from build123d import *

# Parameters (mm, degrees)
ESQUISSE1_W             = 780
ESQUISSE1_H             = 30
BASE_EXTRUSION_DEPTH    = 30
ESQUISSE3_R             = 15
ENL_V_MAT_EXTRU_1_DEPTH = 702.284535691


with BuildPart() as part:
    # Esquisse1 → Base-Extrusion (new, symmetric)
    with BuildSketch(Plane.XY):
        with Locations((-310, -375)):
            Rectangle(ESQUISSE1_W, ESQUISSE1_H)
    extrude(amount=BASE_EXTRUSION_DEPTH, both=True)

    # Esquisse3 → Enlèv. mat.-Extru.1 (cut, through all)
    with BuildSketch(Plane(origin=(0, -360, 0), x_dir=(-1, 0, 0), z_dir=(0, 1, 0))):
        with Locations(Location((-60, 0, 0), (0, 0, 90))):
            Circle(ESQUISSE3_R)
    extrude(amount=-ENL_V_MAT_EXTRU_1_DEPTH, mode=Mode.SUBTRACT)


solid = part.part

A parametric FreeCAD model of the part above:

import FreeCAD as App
import Part
import Sketcher

V = App.Vector
Q = App.Units.Quantity

doc = App.newDocument("Part")
body = doc.addObject("PartDesign::Body", "Body")

# Sketch on XY plane
sketch1 = doc.addObject("Sketcher::SketchObject", "Sketch")
body.addObject(sketch1)
sketch1.AttachmentSupport = (doc.XY_Plane, [""])
sketch1.MapMode = "FlatFace"
sketch1.addGeometry([
    Part.LineSegment(V(-700, -360, 0), V(-700, -390, 0)),
    Part.LineSegment(V(-700, -390, 0), V(80, -390, 0)),
    Part.LineSegment(V(80, -390, 0), V(80, -360, 0)),
    Part.LineSegment(V(80, -360, 0), V(-700, -360, 0)),
], False)
sketch1.addConstraint([
    Sketcher.Constraint("Coincident", 0, 2, 1, 1),
    Sketcher.Constraint("Coincident", 1, 2, 2, 1),
    Sketcher.Constraint("Coincident", 2, 2, 3, 1),
    Sketcher.Constraint("Coincident", 3, 2, 0, 1),
    Sketcher.Constraint("Vertical", 0),
    Sketcher.Constraint("Horizontal", 1),
    Sketcher.Constraint("Vertical", 2),
    Sketcher.Constraint("Horizontal", 3),
    Sketcher.Constraint("DistanceX", 1, 1, 1, 2, Q("780 mm")),
    Sketcher.Constraint("DistanceY", 0, 2, 0, 1, Q("30 mm")),
    Sketcher.Constraint("DistanceX", 0, 2, -1, 1, Q("700 mm")),
    Sketcher.Constraint("DistanceY", 0, 2, -1, 1, Q("390 mm")),
])
pad1 = doc.addObject("PartDesign::Pad", "Pad")
body.addObject(pad1)
pad1.Profile = sketch1
pad1.Length = 60
pad1.Midplane = True

# Sketch on XZ plane
sketch2 = doc.addObject("Sketcher::SketchObject", "Sketch001")
body.addObject(sketch2)
sketch2.AttachmentSupport = (doc.XZ_Plane, [""])
sketch2.MapMode = "FlatFace"
sketch2.AttachmentOffset = App.Placement(V(0, 0, 360), App.Rotation())
sketch2.addGeometry(Part.Circle(V(60, 0, 0), V(0, 0, 1), 15), False)
sketch2.addConstraint([
    Sketcher.Constraint("PointOnObject", 0, 3, -1),
    Sketcher.Constraint("Diameter", 0, Q("30 mm")),
    Sketcher.Constraint("DistanceX", -1, 1, 0, 3, Q("60 mm")),
])
pocket1 = doc.addObject("PartDesign::Pocket", "Pocket")
body.addObject(pocket1)
pocket1.Profile = sketch2
pocket1.Type = "ThroughAll"
pocket1.Reversed = True

doc.recompute()
